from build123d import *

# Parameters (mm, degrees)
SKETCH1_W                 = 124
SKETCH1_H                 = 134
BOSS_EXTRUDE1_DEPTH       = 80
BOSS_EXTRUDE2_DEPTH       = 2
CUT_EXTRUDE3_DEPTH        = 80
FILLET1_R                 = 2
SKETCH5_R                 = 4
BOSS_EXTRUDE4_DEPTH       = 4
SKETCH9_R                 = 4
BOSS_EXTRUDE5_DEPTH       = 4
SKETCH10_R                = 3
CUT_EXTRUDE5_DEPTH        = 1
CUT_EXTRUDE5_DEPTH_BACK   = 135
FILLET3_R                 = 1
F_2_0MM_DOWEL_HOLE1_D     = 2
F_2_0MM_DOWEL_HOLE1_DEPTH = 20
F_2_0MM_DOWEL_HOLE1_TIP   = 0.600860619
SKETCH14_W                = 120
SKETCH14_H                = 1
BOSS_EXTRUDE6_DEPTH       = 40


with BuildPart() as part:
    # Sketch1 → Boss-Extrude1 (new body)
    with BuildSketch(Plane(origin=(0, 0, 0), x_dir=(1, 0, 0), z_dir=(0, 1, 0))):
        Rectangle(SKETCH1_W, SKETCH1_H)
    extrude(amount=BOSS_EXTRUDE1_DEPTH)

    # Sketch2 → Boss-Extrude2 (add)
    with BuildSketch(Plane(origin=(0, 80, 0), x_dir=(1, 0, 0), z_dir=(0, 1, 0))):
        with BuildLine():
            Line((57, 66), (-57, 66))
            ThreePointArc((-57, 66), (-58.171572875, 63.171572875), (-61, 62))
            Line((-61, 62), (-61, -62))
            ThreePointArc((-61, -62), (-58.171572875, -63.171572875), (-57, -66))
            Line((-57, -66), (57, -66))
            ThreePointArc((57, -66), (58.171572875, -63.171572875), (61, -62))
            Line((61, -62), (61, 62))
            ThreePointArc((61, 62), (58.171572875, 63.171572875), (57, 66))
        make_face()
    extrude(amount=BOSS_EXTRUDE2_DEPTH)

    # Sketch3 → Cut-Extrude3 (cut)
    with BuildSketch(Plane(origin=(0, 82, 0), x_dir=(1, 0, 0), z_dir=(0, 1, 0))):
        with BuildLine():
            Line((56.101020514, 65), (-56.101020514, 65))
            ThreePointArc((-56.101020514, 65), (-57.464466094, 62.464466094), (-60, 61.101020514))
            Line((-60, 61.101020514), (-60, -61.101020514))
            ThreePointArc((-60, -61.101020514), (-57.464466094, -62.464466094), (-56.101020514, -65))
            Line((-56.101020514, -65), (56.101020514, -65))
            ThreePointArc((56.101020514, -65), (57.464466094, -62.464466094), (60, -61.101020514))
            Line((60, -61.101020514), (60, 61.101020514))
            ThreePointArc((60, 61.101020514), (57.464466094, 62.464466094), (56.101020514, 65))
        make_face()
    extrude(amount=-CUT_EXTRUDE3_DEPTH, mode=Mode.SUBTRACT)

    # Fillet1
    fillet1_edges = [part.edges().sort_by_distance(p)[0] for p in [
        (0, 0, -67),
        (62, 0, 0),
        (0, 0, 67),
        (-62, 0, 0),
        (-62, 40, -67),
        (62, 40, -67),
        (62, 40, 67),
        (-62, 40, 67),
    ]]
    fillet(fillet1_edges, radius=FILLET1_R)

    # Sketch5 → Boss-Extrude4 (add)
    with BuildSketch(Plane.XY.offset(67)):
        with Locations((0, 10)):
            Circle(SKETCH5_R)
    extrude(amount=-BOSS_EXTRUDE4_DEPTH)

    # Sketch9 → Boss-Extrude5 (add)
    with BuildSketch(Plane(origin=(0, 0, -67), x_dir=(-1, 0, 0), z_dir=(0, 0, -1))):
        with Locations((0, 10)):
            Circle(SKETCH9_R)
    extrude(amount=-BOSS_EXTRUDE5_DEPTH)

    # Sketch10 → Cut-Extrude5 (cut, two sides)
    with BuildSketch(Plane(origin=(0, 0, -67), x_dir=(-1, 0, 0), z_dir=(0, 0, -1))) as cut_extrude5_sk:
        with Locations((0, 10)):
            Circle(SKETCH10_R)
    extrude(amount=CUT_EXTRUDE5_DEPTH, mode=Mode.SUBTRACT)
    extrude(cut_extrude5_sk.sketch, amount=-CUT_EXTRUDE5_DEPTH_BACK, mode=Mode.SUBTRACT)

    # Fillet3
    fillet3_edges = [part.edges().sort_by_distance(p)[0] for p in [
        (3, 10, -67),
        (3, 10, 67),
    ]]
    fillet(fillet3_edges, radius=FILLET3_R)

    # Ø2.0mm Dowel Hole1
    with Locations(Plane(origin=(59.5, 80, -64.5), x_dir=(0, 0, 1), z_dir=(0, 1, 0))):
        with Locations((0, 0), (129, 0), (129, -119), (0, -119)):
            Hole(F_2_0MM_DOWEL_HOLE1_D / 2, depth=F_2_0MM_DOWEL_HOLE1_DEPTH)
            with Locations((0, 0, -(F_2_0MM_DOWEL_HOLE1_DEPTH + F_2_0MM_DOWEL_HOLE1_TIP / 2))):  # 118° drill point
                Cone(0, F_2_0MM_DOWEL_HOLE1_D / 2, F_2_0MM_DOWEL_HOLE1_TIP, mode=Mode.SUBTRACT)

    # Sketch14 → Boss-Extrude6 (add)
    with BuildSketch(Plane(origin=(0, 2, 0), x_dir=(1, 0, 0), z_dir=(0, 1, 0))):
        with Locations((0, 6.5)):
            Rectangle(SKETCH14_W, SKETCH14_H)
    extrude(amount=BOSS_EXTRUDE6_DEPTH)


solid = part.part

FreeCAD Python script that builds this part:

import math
import FreeCAD as App
import Part
import Sketcher
Q = App.Units.Quantity


def edges_at(feature, points):
    """Names of the edges that pass closest to the given points."""
    edges = feature.Shape.Edges
    near = lambda p: min(range(len(edges)), key=lambda i: edges[i].distToShape(Part.Vertex(*p))[0])
    return sorted({f"Edge{near(p) + 1}" for p in points})


def add_polygon(sketch, points):
    """Adds a closed chain of lines whose ends are joined by coincident constraints."""
    first, n = sketch.GeometryCount, len(points)
    for a, b in zip(points, points[1:] + points[:1]):
        sketch.addGeometry(Part.LineSegment(App.Vector(*a, 0), App.Vector(*b, 0)), False)
    for i in range(n):
        sketch.addConstraint(Sketcher.Constraint("Coincident", first + i, 2, first + (i + 1) % n, 1))

doc = App.newDocument("Part")
body = doc.addObject("PartDesign::Body", "Body")

# Sketch on XZ plane
sketch1 = body.newObject("Sketcher::SketchObject", "Sketch")
sketch1.AttachmentSupport = (doc.getObject("XZ_Plane"), [""])
sketch1.MapMode = "FlatFace"
add_polygon(sketch1, [(-62, -67), (-62, 67), (62, 67), (62, -67)])  # lines 0-3
sketch1.addConstraint([
    Sketcher.Constraint("Vertical", 0),
    Sketcher.Constraint("Horizontal", 1),
    Sketcher.Constraint("Vertical", 2),
    Sketcher.Constraint("Horizontal", 3),
    Sketcher.Constraint("Symmetric", 0, 2, 2, 2, -1, 1),
    Sketcher.Constraint("DistanceX", 1, 1, 1, 2, Q("124 mm")),
    Sketcher.Constraint("DistanceY", 0, 1, 0, 2, Q("134 mm")),
])
pad1 = body.newObject("PartDesign::Pad", "Pad")
pad1.Profile = sketch1
pad1.Length = 80
pad1.Reversed = True

# Sketch on XZ plane
sketch2 = body.newObject("Sketcher::SketchObject", "Sketch001")
sketch2.AttachmentSupport = (doc.getObject("XZ_Plane"), [""])
sketch2.MapMode = "FlatFace"
sketch2.AttachmentOffset = App.Placement(App.Vector(0, 0, -80), App.Rotation())
sketch2.addGeometry([
    Part.LineSegment(App.Vector(57, -66, 0), App.Vector(-57, -66, 0)),  # 0
    Part.ArcOfCircle(Part.Circle(App.Vector(-61, -66, 0), App.Vector(0, 0, 1), 4), math.radians(0), math.radians(90)),  # 1
    Part.LineSegment(App.Vector(-61, -62, 0), App.Vector(-61, 62, 0)),  # 2
    Part.ArcOfCircle(Part.Circle(App.Vector(-61, 66, 0), App.Vector(0, 0, 1), 4), math.radians(-90), math.radians(0)),  # 3
    Part.LineSegment(App.Vector(-57, 66, 0), App.Vector(57, 66, 0)),  # 4
    Part.ArcOfCircle(Part.Circle(App.Vector(61, 66, 0), App.Vector(0, 0, 1), 4), math.radians(180), math.radians(270)),  # 5
    Part.LineSegment(App.Vector(61, 62, 0), App.Vector(61, -62, 0)),  # 6
    Part.ArcOfCircle(Part.Circle(App.Vector(61, -66, 0), App.Vector(0, 0, 1), 4), math.radians(90), math.radians(180)),  # 7
], False)
sketch2.addConstraint([
    Sketcher.Constraint("Coincident", 0, 2, 1, 1),
    Sketcher.Constraint("Coincident", 1, 2, 2, 1),
    Sketcher.Constraint("Coincident", 2, 2, 3, 1),
    Sketcher.Constraint("Coincident", 3, 2, 4, 1),
    Sketcher.Constraint("Coincident", 4, 2, 5, 1),
    Sketcher.Constraint("Coincident", 5, 2, 6, 1),
    Sketcher.Constraint("Coincident", 6, 2, 7, 1),
    Sketcher.Constraint("Coincident", 7, 2, 0, 1),
    Sketcher.Constraint("Horizontal", 0),
    Sketcher.Constraint("Vertical", 2),
    Sketcher.Constraint("Horizontal", 4),
    Sketcher.Constraint("Vertical", 6),
    Sketcher.Constraint("Equal", 1, 3),
    Sketcher.Constraint("Equal", 3, 5),
    Sketcher.Constraint("Equal", 5, 7),
    Sketcher.Constraint("Symmetric", 1, 3, 5, 3, -1, 1),
    Sketcher.Constraint("Symmetric", 3, 3, 7, 3, -1, 1),
    Sketcher.Constraint("Symmetric", 3, 3, 5, 3, -2),
    Sketcher.Constraint("Horizontal", 7, 3, 0, 2),
    Sketcher.Constraint("Horizontal", 5, 3, 3, 2),
    Sketcher.Constraint("Vertical", 3, 3, 1, 2),
    Sketcher.Constraint("Vertical", 7, 3, 5, 2),
    Sketcher.Constraint("Radius", 1, Q("4 mm")),
    Sketcher.Constraint("DistanceX", 0, 2, 0, 1, Q("114 mm")),
    Sketcher.Constraint("DistanceY", 2, 1, 2, 2, Q("124 mm")),
])
pad2 = body.newObject("PartDesign::Pad", "Pad001")
pad2.Profile = sketch2
pad2.Length = 2
pad2.Reversed = True

# Sketch on XZ plane
sketch3 = body.newObject("Sketcher::SketchObject", "Sketch002")
sketch3.AttachmentSupport = (doc.getObject("XZ_Plane"), [""])
sketch3.MapMode = "FlatFace"
sketch3.AttachmentOffset = App.Placement(App.Vector(0, 0, -82), App.Rotation())
sketch3.addGeometry([
    Part.LineSegment(App.Vector(56, -65, 0), App.Vector(-56, -65, 0)),  # 0
    Part.ArcOfCircle(Part.Circle(App.Vector(-61, -66, 0), App.Vector(0, 0, 1), 5), math.radians(12), math.radians(78)),  # 1
    Part.LineSegment(App.Vector(-60, -61, 0), App.Vector(-60, 61, 0)),  # 2
    Part.ArcOfCircle(Part.Circle(App.Vector(-61, 66, 0), App.Vector(0, 0, 1), 5), math.radians(-78), math.radians(-12)),  # 3
    Part.LineSegment(App.Vector(-56, 65, 0), App.Vector(56, 65, 0)),  # 4
    Part.ArcOfCircle(Part.Circle(App.Vector(61, 66, 0), App.Vector(0, 0, 1), 5), math.radians(-168), math.radians(-102)),  # 5
    Part.LineSegment(App.Vector(60, 61, 0), App.Vector(60, -61, 0)),  # 6
    Part.ArcOfCircle(Part.Circle(App.Vector(61, -66, 0), App.Vector(0, 0, 1), 5), math.radians(102), math.radians(168)),  # 7
], False)
sketch3.addConstraint([
    Sketcher.Constraint("Coincident", 0, 2, 1, 1),
    Sketcher.Constraint("Coincident", 1, 2, 2, 1),
    Sketcher.Constraint("Coincident", 2, 2, 3, 1),
    Sketcher.Constraint("Coincident", 3, 2, 4, 1),
    Sketcher.Constraint("Coincident", 4, 2, 5, 1),
    Sketcher.Constraint("Coincident", 5, 2, 6, 1),
    Sketcher.Constraint("Coincident", 6, 2, 7, 1),
    Sketcher.Constraint("Coincident", 7, 2, 0, 1),
    Sketcher.Constraint("Horizontal", 0),
    Sketcher.Constraint("Vertical", 2),
    Sketcher.Constraint("Horizontal", 4),
    Sketcher.Constraint("Vertical", 6),
    Sketcher.Constraint("Equal", 1, 3),
    Sketcher.Constraint("Equal", 3, 5),
    Sketcher.Constraint("Equal", 5, 7),
    Sketcher.Constraint("Symmetric", 1, 3, 5, 3, -1, 1),
    Sketcher.Constraint("Symmetric", 3, 3, 7, 3, -1, 1),
    Sketcher.Constraint("Symmetric", 3, 3, 5, 3, -2),
    Sketcher.Constraint("Horizontal", 2, 2, 5, 2),
    Sketcher.Constraint("Vertical", 0, 2, 3, 2),
    Sketcher.Constraint("Radius", 1, Q("5 mm")),
    Sketcher.Constraint("DistanceX", 1, 3, -1, 1, Q("61 mm")),
    Sketcher.Constraint("DistanceY", 1, 3, -1, 1, Q("66 mm")),
    Sketcher.Constraint("DistanceY", 0, 2, -1, 1, Q("65 mm")),
    Sketcher.Constraint("DistanceX", 1, 2, -1, 1, Q("60 mm")),
])
pocket1 = body.newObject("PartDesign::Pocket", "Pocket")
pocket1.Profile = sketch3
pocket1.Length = 80
pocket1.Reversed = True
doc.recompute()

fillet = body.newObject("PartDesign::Fillet", "Fillet")
fillet.Base = (pocket1, edges_at(pocket1, [
    (0, 0, -67),
    (62, 0, 0),
    (0, 0, 67),
    (-62, 0, 0),
    (-62, 40, -67),
    (62, 40, -67),
    (62, 40, 67),
    (-62, 40, 67),
]))
fillet.Radius = 2

# Sketch on XY plane
sketch4 = body.newObject("Sketcher::SketchObject", "Sketch003")
sketch4.AttachmentSupport = (doc.getObject("XY_Plane"), [""])
sketch4.MapMode = "FlatFace"
sketch4.AttachmentOffset = App.Placement(App.Vector(0, 0, 67), App.Rotation())
sketch4.addGeometry(Part.Circle(App.Vector(0, 10, 0), App.Vector(0, 0, 1), 4), False)
sketch4.addConstraint([
    Sketcher.Constraint("PointOnObject", 0, 3, -2),
    Sketcher.Constraint("Diameter", 0, Q("8 mm")),
    Sketcher.Constraint("DistanceY", -1, 1, 0, 3, Q("10 mm")),
])
pad3 = body.newObject("PartDesign::Pad", "Pad002")
pad3.Profile = sketch4
pad3.Length = 4
pad3.Reversed = True

# Sketch on XY plane
sketch5 = body.newObject("Sketcher::SketchObject", "Sketch004")
sketch5.AttachmentSupport = (doc.getObject("XY_Plane"), [""])
sketch5.MapMode = "FlatFace"
sketch5.AttachmentOffset = App.Placement(App.Vector(0, 0, -67), App.Rotation())
sketch5.addGeometry(Part.Circle(App.Vector(0, 10, 0), App.Vector(0, 0, 1), 4), False)
sketch5.addConstraint([
    Sketcher.Constraint("PointOnObject", 0, 3, -2),
    Sketcher.Constraint("Diameter", 0, Q("8 mm")),
    Sketcher.Constraint("DistanceY", -1, 1, 0, 3, Q("10 mm")),
])
pad4 = body.newObject("PartDesign::Pad", "Pad003")
pad4.Profile = sketch5
pad4.Length = 4

# Sketch on XY plane
sketch6 = body.newObject("Sketcher::SketchObject", "Sketch005")
sketch6.AttachmentSupport = (doc.getObject("XY_Plane"), [""])
sketch6.MapMode = "FlatFace"
sketch6.AttachmentOffset = App.Placement(App.Vector(0, 0, -67), App.Rotation())
sketch6.addGeometry(Part.Circle(App.Vector(0, 10, 0), App.Vector(0, 0, 1), 3), False)
sketch6.addConstraint([
    Sketcher.Constraint("PointOnObject", 0, 3, -2),
    Sketcher.Constraint("Diameter", 0, Q("6 mm")),
    Sketcher.Constraint("DistanceY", -1, 1, 0, 3, Q("10 mm")),
])
pocket2 = body.newObject("PartDesign::Pocket", "Pocket001")
pocket2.Profile = sketch6
pocket2.Type = "ThroughAll"
pocket2.Midplane = True
doc.recompute()

fillet2 = body.newObject("PartDesign::Fillet", "Fillet001")
fillet2.Base = (pocket2, edges_at(pocket2, [(3, 10, -67), (3, 10, 67)]))
fillet2.Radius = 1

# Sketch on XZ plane
sketch7 = body.newObject("Sketcher::SketchObject", "Sketch006")
sketch7.AttachmentSupport = (doc.getObject("XZ_Plane"), [""])
sketch7.MapMode = "FlatFace"
sketch7.AttachmentOffset = App.Placement(App.Vector(0, 0, -80), App.Rotation())
sketch7.addGeometry([
    Part.Circle(App.Vector(59.5, -64.5, 0), App.Vector(0, 0, 1), 1),
    Part.Circle(App.Vector(59.5, 64.5, 0), App.Vector(0, 0, 1), 1),
    Part.Circle(App.Vector(-59.5, 64.5, 0), App.Vector(0, 0, 1), 1),
    Part.Circle(App.Vector(-59.5, -64.5, 0), App.Vector(0, 0, 1), 1),
], False)
sketch7.addConstraint([
    Sketcher.Constraint("Equal", 0, 1),
    Sketcher.Constraint("Equal", 1, 2),
    Sketcher.Constraint("Equal", 2, 3),
    Sketcher.Constraint("Symmetric", 0, 3, 2, 3, -1, 1),
    Sketcher.Constraint("Symmetric", 1, 3, 3, 3, -1, 1),
    Sketcher.Constraint("Symmetric", 1, 3, 2, 3, -2),
    Sketcher.Constraint("Diameter", 0, Q("2 mm")),
    Sketcher.Constraint("DistanceY", 0, 3, 1, 3, Q("129 mm")),
    Sketcher.Constraint("DistanceX", 2, 3, 1, 3, Q("119 mm")),
])
doc.recompute()
hole = body.newObject("PartDesign::Hole", "Hole")
hole.Profile = sketch7
hole.ThreadType = "None"
hole.Diameter = 2
hole.DepthType = "Dimension"
hole.Depth = 20
hole.DrillPoint = "Angled"
hole.DrillPointAngle = 118
hole.Reversed = True

# Sketch on XZ plane
sketch8 = body.newObject("Sketcher::SketchObject", "Sketch007")
sketch8.AttachmentSupport = (doc.getObject("XZ_Plane"), [""])
sketch8.MapMode = "FlatFace"
sketch8.AttachmentOffset = App.Placement(App.Vector(0, 0, -2), App.Rotation())
add_polygon(sketch8, [(-60, -7), (-60, -6), (60, -6), (60, -7)])  # lines 0-3
sketch8.addConstraint([
    Sketcher.Constraint("Vertical", 0),
    Sketcher.Constraint("Horizontal", 1),
    Sketcher.Constraint("Vertical", 2),
    Sketcher.Constraint("Horizontal", 3),
    Sketcher.Constraint("DistanceX", 1, 1, 1, 2, Q("120 mm")),
    Sketcher.Constraint("DistanceY", 0, 1, 0, 2, Q("1 mm")),
    Sketcher.Constraint("DistanceX", 0, 2, -1, 1, Q("60 mm")),
    Sketcher.Constraint("DistanceY", 0, 2, -1, 1, Q("6 mm")),
])
pad5 = body.newObject("PartDesign::Pad", "Pad004")
pad5.Profile = sketch8
pad5.Length = 40
pad5.Reversed = True

doc.recompute()
